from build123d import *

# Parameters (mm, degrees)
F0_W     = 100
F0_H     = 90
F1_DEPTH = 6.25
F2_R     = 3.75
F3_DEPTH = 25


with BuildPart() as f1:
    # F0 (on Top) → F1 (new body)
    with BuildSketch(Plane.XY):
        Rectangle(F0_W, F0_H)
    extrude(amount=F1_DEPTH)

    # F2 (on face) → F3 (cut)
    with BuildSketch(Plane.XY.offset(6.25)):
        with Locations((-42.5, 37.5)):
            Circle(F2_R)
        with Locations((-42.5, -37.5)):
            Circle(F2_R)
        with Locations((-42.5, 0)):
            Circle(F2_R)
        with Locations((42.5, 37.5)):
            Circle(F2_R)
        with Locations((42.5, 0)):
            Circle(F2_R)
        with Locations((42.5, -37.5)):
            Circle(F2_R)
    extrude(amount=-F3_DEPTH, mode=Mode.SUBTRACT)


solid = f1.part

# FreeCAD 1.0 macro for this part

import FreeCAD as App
import Part
import Sketcher

V = App.Vector
Q = App.Units.Quantity

doc = App.newDocument("Part")
params = doc.addObject("Spreadsheet::Sheet", "Params")
for row, (alias, value) in enumerate([
    ("sketch1_width", "100 mm"),
    ("sketch1_height", "90 mm"),
    ("pad1_length", "6.25 mm"),
    ("sketch2_diameter", "7.5 mm"),
    ("pocket1_length", "25 mm"),
], start=1):
    params.set(f"A{row}", alias)
    params.set(f"B{row}", "=" + value)
    params.setAlias(f"B{row}", alias)

body = doc.addObject("PartDesign::Body", "Body")

sketch1 = body.newObject("Sketcher::SketchObject", "Sketch")
sketch1.AttachmentSupport = (doc.getObject("XY_Plane"), [""])
sketch1.MapMode = "FlatFace"
sketch1.addGeometry([
    Part.LineSegment(V(-50, 45, 0), V(-50, -45, 0)),
    Part.LineSegment(V(-50, -45, 0), V(50, -45, 0)),
    Part.LineSegment(V(50, -45, 0), V(50, 45, 0)),
    Part.LineSegment(V(50, 45, 0), V(-50, 45, 0)),
], False)
sketch1.addConstraint([
    Sketcher.Constraint("Coincident", 0, 2, 1, 1),
    Sketcher.Constraint("Coincident", 1, 2, 2, 1),
    Sketcher.Constraint("Coincident", 2, 2, 3, 1),
    Sketcher.Constraint("Coincident", 3, 2, 0, 1),
    Sketcher.Constraint("Vertical", 0),
    Sketcher.Constraint("Horizontal", 1),
    Sketcher.Constraint("Vertical", 2),
    Sketcher.Constraint("Horizontal", 3),
    Sketcher.Constraint("Symmetric", 0, 2, 2, 2, -1, 1),
    Sketcher.Constraint("DistanceX", 1, 1, 1, 2, Q("100 mm")),
    Sketcher.Constraint("DistanceY", 0, 2, 0, 1, Q("90 mm")),
])
sketch1.setExpression("Constraints[9]", "Params.sketch1_width")
sketch1.setExpression("Constraints[10]", "Params.sketch1_height")
pad1 = body.newObject("PartDesign::Pad", "Pad")
pad1.Profile = sketch1
pad1.setExpression("Length", "Params.pad1_length")

sketch2 = body.newObject("Sketcher::SketchObject", "Sketch001")
sketch2.AttachmentSupport = (doc.getObject("XY_Plane"), [""])
sketch2.MapMode = "FlatFace"
sketch2.AttachmentOffset = App.Placement(V(0, 0, 6.25), App.Rotation())
sketch2.addGeometry([
    Part.Circle(V(-42.5, 37.5, 0), V(0, 0, 1), 3.75),
    Part.Circle(V(-42.5, -37.5, 0), V(0, 0, 1), 3.75),
    Part.Circle(V(-42.5, 0, 0), V(0, 0, 1), 3.75),
    Part.Circle(V(42.5, 37.5, 0), V(0, 0, 1), 3.75),
    Part.Circle(V(42.5, 0, 0), V(0, 0, 1), 3.75),
    Part.Circle(V(42.5, -37.5, 0), V(0, 0, 1), 3.75),
], False)
sketch2.addConstraint([
    Sketcher.Constraint("Equal", 0, 1),
    Sketcher.Constraint("Equal", 1, 2),
    Sketcher.Constraint("Equal", 2, 3),
    Sketcher.Constraint("Equal", 3, 4),
    Sketcher.Constraint("Equal", 4, 5),
    Sketcher.Constraint("Symmetric", 1, 3, 3, 3, -1, 1),
    Sketcher.Constraint("Symmetric", 2, 3, 4, 3, -1, 1),
    Sketcher.Constraint("Symmetric", 0, 3, 5, 3, -1, 1),
    Sketcher.Constraint("Symmetric", 0, 3, 3, 3, -2),
    Sketcher.Constraint("PointOnObject", 2, 3, -1),
    Sketcher.Constraint("Vertical", 1, 3, 2, 3),
    Sketcher.Constraint("Diameter", 0, Q("7.5 mm")),
    Sketcher.Constraint("DistanceY", 1, 3, 0, 3, Q("75 mm")),
    Sketcher.Constraint("DistanceX", 0, 3, 3, 3, Q("85 mm")),
])
sketch2.setExpression("Constraints[11]", "Params.sketch2_diameter")
pocket1 = body.newObject("PartDesign::Pocket", "Pocket")
pocket1.Profile = sketch2
pocket1.setExpression("Length", "Params.pocket1_length")

doc.recompute()
